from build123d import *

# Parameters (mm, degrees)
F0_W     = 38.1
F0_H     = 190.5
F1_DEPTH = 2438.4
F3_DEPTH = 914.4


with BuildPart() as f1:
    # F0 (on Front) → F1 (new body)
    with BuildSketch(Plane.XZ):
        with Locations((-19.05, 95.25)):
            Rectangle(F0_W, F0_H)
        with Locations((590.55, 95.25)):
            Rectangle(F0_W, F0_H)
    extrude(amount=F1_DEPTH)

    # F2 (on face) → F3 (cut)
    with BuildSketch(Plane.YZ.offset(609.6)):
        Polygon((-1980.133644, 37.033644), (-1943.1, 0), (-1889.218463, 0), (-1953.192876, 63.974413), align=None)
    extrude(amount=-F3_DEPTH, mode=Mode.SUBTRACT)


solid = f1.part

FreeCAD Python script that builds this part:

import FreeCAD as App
import Part
import Sketcher
from FreeCAD import Vector
Q = App.Units.Quantity


def add_polygon(sketch, points):
    """Adds a closed chain of lines whose ends are joined by coincident constraints."""
    first, n = sketch.GeometryCount, len(points)
    for a, b in zip(points, points[1:] + points[:1]):
        sketch.addGeometry(Part.LineSegment(App.Vector(*a, 0), App.Vector(*b, 0)), False)
    for i in range(n):
        sketch.addConstraint(Sketcher.Constraint("Coincident", first + i, 2, first + (i + 1) % n, 1))

doc = App.newDocument("Part")
body = doc.addObject("PartDesign::Body", "Body")
body.AllowCompound = True

# Sketch on XZ plane
sketch1 = doc.addObject("Sketcher::SketchObject", "Sketch")
body.addObject(sketch1)
sketch1.AttachmentSupport = (doc.XZ_Plane, [""])
sketch1.MapMode = "FlatFace"
add_polygon(sketch1, [(-38.1, 190.5), (-38.1, 0), (0, 0), (0, 190.5)])  # lines 0-3
add_polygon(sketch1, [(571.5, 190.5), (571.5, 0), (609.6, 0), (609.6, 190.5)])  # lines 4-7
sketch1.addConstraint([
    Sketcher.Constraint("Vertical", 0),
    Sketcher.Constraint("Horizontal", 1),
    Sketcher.Constraint("Vertical", 2),
    Sketcher.Constraint("Horizontal", 3),
    Sketcher.Constraint("Vertical", 4),
    Sketcher.Constraint("Horizontal", 5),
    Sketcher.Constraint("Vertical", 6),
    Sketcher.Constraint("Horizontal", 7),
    Sketcher.Constraint("Coincident", 1, 2, -1, 1),
    Sketcher.Constraint("PointOnObject", 4, 2, -1),
    Sketcher.Constraint("Horizontal", 3, 2, 6, 2),
    Sketcher.Constraint("Equal", 3, 5),
    Sketcher.Constraint("DistanceX", 1, 1, 1, 2, Q("1.5 in")),
    Sketcher.Constraint("DistanceY", 0, 2, 0, 1, Q("7.5 in")),
    Sketcher.Constraint("DistanceX", -1, 1, 5, 2, Q("24 in")),
])
pad1 = doc.addObject("PartDesign::Pad", "Pad")
body.addObject(pad1)
pad1.Profile = sketch1
pad1.Length = Q("96 in")

# Sketch on YZ plane
sketch2 = doc.addObject("Sketcher::SketchObject", "Sketch001")
body.addObject(sketch2)
sketch2.AttachmentSupport = (doc.YZ_Plane, [""])
sketch2.MapMode = "FlatFace"
sketch2.AttachmentOffset = App.Placement(Vector(0, 0, 24 * 25.4), App.Rotation())
add_polygon(sketch2, [(-1980.133644, 37.033644), (-1943.1, 0), (-1889.218463, 0), (-1953.192876, 63.974413)])  # lines 0-3
sketch2.addConstraint([
    Sketcher.Constraint("Horizontal", 1),
    Sketcher.Constraint("PointOnObject", 0, 2, -1),
    Sketcher.Constraint("Parallel", 0, 2),
    Sketcher.Constraint("Perpendicular", 2, 3),
    Sketcher.Constraint("Angle", 0, Q("-45 deg")),
    Sketcher.Constraint("Distance", 3, Q("1.5 in")),
    Sketcher.Constraint("DistanceX", 0, 2, -1, 1, Q("76.5 in")),
    Sketcher.Constraint("Distance", 0, 52.373482),
])
pocket1 = doc.addObject("PartDesign::Pocket", "Pocket")
body.addObject(pocket1)
pocket1.Profile = sketch2
pocket1.Length = Q("36 in")

doc.recompute()
